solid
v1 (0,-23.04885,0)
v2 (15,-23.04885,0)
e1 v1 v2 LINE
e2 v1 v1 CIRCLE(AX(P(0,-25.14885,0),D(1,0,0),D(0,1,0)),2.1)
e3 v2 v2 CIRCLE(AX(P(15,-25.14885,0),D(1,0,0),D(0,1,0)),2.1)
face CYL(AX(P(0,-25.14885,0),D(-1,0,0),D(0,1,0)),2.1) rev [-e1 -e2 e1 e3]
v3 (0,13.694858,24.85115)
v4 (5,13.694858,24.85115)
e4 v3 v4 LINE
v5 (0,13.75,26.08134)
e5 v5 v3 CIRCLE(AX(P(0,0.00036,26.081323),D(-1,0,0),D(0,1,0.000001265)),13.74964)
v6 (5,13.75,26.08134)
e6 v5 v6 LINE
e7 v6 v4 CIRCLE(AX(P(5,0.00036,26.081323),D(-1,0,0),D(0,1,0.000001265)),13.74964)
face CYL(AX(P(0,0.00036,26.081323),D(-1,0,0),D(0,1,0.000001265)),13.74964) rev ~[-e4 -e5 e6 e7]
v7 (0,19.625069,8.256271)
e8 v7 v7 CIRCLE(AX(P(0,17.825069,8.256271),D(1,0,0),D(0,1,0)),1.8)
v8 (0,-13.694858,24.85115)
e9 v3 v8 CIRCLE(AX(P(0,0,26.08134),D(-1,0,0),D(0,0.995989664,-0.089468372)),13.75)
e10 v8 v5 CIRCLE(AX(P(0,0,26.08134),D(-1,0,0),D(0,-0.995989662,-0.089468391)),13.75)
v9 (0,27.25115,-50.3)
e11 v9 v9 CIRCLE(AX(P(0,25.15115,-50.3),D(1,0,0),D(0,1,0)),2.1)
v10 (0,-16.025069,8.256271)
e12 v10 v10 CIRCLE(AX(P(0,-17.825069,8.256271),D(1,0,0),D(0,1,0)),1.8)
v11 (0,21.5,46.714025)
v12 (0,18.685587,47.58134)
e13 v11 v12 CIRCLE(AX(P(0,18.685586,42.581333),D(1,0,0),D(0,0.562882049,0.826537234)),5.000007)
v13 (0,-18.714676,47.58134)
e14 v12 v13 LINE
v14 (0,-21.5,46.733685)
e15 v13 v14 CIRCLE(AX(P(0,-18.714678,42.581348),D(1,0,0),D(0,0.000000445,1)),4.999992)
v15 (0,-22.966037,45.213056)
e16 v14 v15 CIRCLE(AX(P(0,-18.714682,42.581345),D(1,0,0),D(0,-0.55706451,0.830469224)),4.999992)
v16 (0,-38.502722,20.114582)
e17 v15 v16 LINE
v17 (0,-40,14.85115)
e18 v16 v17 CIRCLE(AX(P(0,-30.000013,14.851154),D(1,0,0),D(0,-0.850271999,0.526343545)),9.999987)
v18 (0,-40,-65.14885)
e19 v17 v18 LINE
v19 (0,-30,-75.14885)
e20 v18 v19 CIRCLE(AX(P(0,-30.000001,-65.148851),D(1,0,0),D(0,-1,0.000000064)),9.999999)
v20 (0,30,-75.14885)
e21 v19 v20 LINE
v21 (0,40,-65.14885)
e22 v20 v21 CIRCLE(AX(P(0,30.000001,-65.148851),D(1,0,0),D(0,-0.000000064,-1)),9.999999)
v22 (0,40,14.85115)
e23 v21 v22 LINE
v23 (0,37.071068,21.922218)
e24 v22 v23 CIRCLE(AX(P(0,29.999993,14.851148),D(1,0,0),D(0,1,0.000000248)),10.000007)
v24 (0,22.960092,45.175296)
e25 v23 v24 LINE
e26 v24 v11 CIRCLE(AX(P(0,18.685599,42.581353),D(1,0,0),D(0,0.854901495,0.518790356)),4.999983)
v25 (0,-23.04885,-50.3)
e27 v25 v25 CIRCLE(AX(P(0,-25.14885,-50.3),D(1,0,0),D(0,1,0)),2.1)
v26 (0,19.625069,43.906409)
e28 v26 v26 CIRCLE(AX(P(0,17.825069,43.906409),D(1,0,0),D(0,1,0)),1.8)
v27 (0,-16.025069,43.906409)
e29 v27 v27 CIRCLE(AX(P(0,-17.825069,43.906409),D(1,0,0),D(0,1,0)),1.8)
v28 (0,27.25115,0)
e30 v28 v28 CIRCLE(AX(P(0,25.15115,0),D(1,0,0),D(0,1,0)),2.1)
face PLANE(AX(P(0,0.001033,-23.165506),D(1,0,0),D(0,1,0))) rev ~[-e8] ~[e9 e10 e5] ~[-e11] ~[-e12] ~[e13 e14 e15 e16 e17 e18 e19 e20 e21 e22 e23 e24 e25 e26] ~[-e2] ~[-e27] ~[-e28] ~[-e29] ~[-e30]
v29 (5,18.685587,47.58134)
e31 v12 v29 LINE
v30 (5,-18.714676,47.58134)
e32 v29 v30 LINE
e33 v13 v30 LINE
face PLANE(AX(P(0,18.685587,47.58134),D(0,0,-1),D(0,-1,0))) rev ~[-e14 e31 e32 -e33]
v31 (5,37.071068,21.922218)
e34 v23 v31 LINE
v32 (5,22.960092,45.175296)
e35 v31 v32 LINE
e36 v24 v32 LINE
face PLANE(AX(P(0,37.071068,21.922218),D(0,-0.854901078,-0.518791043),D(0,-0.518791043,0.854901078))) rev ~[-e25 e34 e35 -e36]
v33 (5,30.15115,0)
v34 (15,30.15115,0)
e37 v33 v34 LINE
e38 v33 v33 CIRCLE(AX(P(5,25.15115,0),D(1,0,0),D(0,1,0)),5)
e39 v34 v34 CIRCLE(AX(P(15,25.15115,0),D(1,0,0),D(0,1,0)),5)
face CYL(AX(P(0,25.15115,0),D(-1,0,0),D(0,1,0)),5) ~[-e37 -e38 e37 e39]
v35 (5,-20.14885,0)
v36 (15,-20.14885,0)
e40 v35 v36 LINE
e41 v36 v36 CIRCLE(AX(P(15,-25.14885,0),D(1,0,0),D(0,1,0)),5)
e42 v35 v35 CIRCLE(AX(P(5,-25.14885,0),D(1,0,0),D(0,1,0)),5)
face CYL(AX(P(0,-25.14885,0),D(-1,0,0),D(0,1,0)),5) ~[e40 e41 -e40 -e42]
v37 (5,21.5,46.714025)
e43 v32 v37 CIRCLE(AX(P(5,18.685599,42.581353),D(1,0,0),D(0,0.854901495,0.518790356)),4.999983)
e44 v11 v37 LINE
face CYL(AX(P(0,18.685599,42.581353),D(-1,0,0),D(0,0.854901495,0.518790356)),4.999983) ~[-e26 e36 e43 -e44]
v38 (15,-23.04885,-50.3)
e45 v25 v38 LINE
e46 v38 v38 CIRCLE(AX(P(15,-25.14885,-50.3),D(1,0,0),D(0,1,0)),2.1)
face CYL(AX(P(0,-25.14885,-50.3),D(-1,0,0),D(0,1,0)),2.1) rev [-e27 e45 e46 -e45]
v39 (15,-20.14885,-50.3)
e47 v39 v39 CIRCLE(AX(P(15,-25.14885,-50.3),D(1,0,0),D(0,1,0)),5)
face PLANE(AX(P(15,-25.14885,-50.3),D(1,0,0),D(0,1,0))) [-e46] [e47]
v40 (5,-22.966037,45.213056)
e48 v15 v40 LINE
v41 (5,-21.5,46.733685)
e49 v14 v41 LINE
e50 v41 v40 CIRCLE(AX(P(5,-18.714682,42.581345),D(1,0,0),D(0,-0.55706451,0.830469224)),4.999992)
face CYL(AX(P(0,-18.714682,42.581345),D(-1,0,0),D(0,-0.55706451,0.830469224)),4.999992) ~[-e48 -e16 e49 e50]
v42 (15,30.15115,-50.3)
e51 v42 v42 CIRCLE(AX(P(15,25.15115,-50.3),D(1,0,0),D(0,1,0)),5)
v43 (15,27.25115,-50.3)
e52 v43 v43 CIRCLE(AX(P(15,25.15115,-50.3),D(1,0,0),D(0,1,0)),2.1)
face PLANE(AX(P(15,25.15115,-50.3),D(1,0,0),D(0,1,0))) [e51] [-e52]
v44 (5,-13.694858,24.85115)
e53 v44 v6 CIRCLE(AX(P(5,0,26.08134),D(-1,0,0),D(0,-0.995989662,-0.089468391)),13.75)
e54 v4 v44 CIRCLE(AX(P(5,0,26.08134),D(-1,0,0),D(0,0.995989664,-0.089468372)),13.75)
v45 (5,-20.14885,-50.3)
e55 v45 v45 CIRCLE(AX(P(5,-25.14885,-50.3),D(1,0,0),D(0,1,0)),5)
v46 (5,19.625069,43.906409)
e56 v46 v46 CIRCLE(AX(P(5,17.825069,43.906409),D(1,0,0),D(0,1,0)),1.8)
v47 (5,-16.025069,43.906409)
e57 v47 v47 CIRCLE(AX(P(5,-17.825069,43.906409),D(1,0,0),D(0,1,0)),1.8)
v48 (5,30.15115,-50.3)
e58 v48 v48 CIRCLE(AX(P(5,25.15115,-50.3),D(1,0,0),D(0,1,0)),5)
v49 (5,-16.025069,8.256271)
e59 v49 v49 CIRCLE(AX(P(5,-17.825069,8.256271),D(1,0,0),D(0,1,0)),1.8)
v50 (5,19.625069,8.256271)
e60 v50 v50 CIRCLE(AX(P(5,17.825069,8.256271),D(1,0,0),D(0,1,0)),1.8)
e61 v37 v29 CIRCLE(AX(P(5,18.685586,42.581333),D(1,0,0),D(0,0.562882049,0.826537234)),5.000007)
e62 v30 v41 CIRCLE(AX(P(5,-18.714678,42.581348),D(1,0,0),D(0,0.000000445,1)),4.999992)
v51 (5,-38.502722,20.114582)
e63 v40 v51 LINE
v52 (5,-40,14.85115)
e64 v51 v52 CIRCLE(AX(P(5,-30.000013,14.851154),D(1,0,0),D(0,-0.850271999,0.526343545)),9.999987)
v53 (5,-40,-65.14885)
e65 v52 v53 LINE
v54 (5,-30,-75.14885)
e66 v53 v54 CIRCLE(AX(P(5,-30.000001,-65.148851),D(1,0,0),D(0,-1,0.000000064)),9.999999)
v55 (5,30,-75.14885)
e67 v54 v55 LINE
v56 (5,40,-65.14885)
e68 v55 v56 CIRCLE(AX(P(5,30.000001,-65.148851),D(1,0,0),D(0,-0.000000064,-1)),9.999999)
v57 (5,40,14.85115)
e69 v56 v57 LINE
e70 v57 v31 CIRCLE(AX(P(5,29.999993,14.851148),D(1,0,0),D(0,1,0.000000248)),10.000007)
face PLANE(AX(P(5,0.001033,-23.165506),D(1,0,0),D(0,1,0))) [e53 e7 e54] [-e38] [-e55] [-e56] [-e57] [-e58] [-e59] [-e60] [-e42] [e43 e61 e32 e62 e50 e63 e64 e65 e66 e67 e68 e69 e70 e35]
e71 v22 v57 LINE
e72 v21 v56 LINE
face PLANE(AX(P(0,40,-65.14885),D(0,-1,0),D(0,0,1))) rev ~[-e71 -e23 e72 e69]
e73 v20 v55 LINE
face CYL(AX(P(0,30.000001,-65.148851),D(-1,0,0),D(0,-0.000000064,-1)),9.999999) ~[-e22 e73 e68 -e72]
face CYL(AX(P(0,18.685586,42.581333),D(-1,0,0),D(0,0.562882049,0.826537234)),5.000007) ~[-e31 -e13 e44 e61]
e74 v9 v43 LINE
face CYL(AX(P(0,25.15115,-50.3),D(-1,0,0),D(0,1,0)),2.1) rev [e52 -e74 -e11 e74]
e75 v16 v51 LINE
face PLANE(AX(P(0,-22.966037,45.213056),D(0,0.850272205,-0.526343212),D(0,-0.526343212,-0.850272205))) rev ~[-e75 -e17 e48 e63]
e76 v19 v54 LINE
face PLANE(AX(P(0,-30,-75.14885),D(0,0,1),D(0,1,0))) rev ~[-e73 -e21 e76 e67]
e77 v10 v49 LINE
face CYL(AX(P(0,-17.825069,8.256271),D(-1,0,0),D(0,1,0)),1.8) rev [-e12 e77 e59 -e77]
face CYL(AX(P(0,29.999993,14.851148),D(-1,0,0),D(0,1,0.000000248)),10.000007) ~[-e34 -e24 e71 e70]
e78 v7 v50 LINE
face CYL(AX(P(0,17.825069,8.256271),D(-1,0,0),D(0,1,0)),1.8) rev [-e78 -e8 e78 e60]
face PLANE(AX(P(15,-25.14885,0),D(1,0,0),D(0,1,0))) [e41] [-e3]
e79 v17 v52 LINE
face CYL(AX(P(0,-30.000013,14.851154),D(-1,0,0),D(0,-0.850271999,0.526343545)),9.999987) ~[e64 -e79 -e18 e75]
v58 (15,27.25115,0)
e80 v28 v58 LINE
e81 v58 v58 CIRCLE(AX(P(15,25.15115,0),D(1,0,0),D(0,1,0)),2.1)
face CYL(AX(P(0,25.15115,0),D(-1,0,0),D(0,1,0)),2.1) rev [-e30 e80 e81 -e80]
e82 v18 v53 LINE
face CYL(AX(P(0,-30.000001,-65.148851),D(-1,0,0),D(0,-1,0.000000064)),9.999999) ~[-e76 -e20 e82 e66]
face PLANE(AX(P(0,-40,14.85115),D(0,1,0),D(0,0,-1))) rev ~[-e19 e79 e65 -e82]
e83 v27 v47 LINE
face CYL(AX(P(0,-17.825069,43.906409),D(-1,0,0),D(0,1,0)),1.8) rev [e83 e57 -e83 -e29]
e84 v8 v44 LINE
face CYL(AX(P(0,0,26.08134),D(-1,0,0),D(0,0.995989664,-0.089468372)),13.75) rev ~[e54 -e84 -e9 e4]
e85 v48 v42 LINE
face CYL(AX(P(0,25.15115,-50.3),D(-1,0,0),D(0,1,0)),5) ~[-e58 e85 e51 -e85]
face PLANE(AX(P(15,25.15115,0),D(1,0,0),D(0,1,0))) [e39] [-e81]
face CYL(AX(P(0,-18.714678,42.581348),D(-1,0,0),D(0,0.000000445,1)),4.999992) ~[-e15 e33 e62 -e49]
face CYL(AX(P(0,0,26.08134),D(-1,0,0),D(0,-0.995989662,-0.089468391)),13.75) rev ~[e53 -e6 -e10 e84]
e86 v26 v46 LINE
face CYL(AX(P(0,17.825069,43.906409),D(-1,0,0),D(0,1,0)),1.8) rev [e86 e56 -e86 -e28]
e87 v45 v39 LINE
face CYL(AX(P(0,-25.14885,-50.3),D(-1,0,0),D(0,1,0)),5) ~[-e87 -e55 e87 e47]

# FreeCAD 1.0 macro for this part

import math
import FreeCAD as App
import Part
import Sketcher

V = App.Vector

doc = App.newDocument("Part")
body = doc.addObject("PartDesign::Body", "Body")

# Sketch on YZ plane
sketch1 = body.newObject("Sketcher::SketchObject", "Sketch")
sketch1.AttachmentSupport = (doc.getObject("YZ_Plane"), [""])
sketch1.MapMode = "FlatFace"
sketch1.addGeometry([
    Part.LineSegment(V(-30, -75.14885, 0), V(30, -75.14885, 0)),  # 0
    Part.ArcOfCircle(Part.Circle(V(30.000001, -65.148851, 0), V(0, 0, 1), 9.999999), math.radians(-90.000004), math.radians(0.000004)),  # 1
    Part.LineSegment(V(40, -65.14885, 0), V(40, 14.85115, 0)),  # 2
    Part.ArcOfCircle(Part.Circle(V(29.999993, 14.851148, 0), V(0, 0, 1), 10.000007), math.radians(0.000014), math.radians(44.999982)),  # 3
    Part.LineSegment(V(37.071068, 21.922218, 0), V(22.960092, 45.175296, 0)),  # 4
    Part.ArcOfCircle(Part.Circle(V(18.685599, 42.581353, 0), V(0, 0, 1), 4.999983), math.radians(31.251146), math.radians(55.744649)),  # 5
    Part.ArcOfCircle(Part.Circle(V(18.685586, 42.581333, 0), V(0, 0, 1), 5.000007), math.radians(55.744654), math.radians(89.999988)),  # 6
    Part.LineSegment(V(18.685587, 47.58134, 0), V(-18.714676, 47.58134, 0)),  # 7
    Part.ArcOfCircle(Part.Circle(V(-18.714678, 42.581348, 0), V(0, 0, 1), 4.999992), math.radians(89.999974), math.radians(123.853082)),  # 8
    Part.ArcOfCircle(Part.Circle(V(-18.714682, 42.581345, 0), V(0, 0, 1), 4.999992), math.radians(123.853031), math.radians(148.241306)),  # 9
    Part.LineSegment(V(-22.966037, 45.213056, 0), V(-38.502722, 20.114582, 0)),  # 10
    Part.ArcOfCircle(Part.Circle(V(-30.000013, 14.851154, 0), V(0, 0, 1), 9.999987), math.radians(148.241266), math.radians(180.000021)),  # 11
    Part.LineSegment(V(-40, 14.85115, 0), V(-40, -65.14885, 0)),  # 12
    Part.ArcOfCircle(Part.Circle(V(-30.000001, -65.148851, 0), V(0, 0, 1), 9.999999), math.radians(179.999996), math.radians(270.000004)),  # 13
    Part.Circle(V(-25.14885, -50.3, 0), V(0, 0, 1), 5),  # 14
    Part.Circle(V(25.15115, -50.3, 0), V(0, 0, 1), 5),  # 15
    Part.Circle(V(-25.14885, 0, 0), V(0, 0, 1), 5),  # 16
    Part.Circle(V(-17.825069, 8.256271, 0), V(0, 0, 1), 1.8),  # 17
    Part.Circle(V(-17.825069, 43.906409, 0), V(0, 0, 1), 1.8),  # 18
    Part.ArcOfCircle(Part.Circle(V(0.00036, 26.081323, 0), V(0, 0, 1), 13.74964), math.radians(-5.133085), math.radians(0.000072)),  # 19
    Part.ArcOfCircle(Part.Circle(V(0, 26.08134, 0), V(0, 0, 1), 13.75), math.radians(-174.866976), math.radians(-5.133024)),  # 20
    Part.ArcOfCircle(Part.Circle(V(0, 26.08134, 0), V(0, 0, 1), 13.75), math.radians(-0.000002), math.radians(185.133025)),  # 21
    Part.Circle(V(25.15115, 0, 0), V(0, 0, 1), 5),  # 22
    Part.Circle(V(17.825069, 8.256271, 0), V(0, 0, 1), 1.8),  # 23
    Part.Circle(V(17.825069, 43.906409, 0), V(0, 0, 1), 1.8),  # 24
], False)
sketch1.addConstraint([
    Sketcher.Constraint("Coincident", 0, 2, 1, 1),
    Sketcher.Constraint("Coincident", 1, 2, 2, 1),
    Sketcher.Constraint("Coincident", 2, 2, 3, 1),
    Sketcher.Constraint("Coincident", 3, 2, 4, 1),
    Sketcher.Constraint("Coincident", 4, 2, 5, 1),
    Sketcher.Constraint("Coincident", 5, 2, 6, 1),
    Sketcher.Constraint("Coincident", 6, 2, 7, 1),
    Sketcher.Constraint("Coincident", 7, 2, 8, 1),
    Sketcher.Constraint("Coincident", 8, 2, 9, 1),
    Sketcher.Constraint("Coincident", 9, 2, 10, 1),
    Sketcher.Constraint("Coincident", 10, 2, 11, 1),
    Sketcher.Constraint("Coincident", 11, 2, 12, 1),
    Sketcher.Constraint("Coincident", 12, 2, 13, 1),
    Sketcher.Constraint("Coincident", 13, 2, 0, 1),
    Sketcher.Constraint("Coincident", 19, 1, 20, 2),
    Sketcher.Constraint("Coincident", 20, 1, 21, 2),
    Sketcher.Constraint("Coincident", 21, 1, 19, 2),
    Sketcher.Constraint("Horizontal", 0),
    Sketcher.Constraint("Vertical", 2),
    Sketcher.Constraint("Horizontal", 7),
    Sketcher.Constraint("Vertical", 12),
    Sketcher.Constraint("Coincident", 9, 3, 8, 3),
    Sketcher.Constraint("Coincident", 21, 3, 20, 3),
    Sketcher.Constraint("PointOnObject", 16, 3, -1),
    Sketcher.Constraint("PointOnObject", 20, 3, -2),
    Sketcher.Constraint("PointOnObject", 22, 3, -1),
    Sketcher.Constraint("Diameter", 14, 10.0),
    Sketcher.Constraint("Diameter", 15, 10.0),
    Sketcher.Constraint("Diameter", 16, 10.0),
    Sketcher.Constraint("Diameter", 22, 10.0),
    Sketcher.Constraint("Radius", 1, 9.999999),
    Sketcher.Constraint("Radius", 13, 9.999999),
    Sketcher.Constraint("Diameter", 17, 3.6),
    Sketcher.Constraint("Diameter", 18, 3.6),
    Sketcher.Constraint("Diameter", 23, 3.6),
    Sketcher.Constraint("Diameter", 24, 3.6),
    Sketcher.Constraint("DistanceX", 0, 1, 0, 2, 60.0),
    Sketcher.Constraint("DistanceY", 2, 1, 2, 2, 80.0),
    Sketcher.Constraint("DistanceY", 12, 2, 12, 1, 80.0),
    Sketcher.Constraint("Radius", 20, 13.75),
    Sketcher.Constraint("DistanceX", -1, 1, 1, 3, 30.000001),
    Sketcher.Constraint("DistanceX", 13, 3, -1, 1, 30.000001),
    Sketcher.Constraint("DistanceX", -1, 1, 0, 2, 30.0),
    Sketcher.Constraint("DistanceY", 1, 3, 3, 3, 79.999998),
    Sketcher.Constraint("DistanceY", 0, 2, 1, 2, 10.0),
    Sketcher.Constraint("DistanceY", 13, 2, 12, 2, 10.0),
    Sketcher.Constraint("DistanceY", 14, 3, -1, 1, 50.3),
    Sketcher.Constraint("DistanceY", 15, 3, -1, 1, 50.3),
    Sketcher.Constraint("DistanceX", -1, 1, 5, 2, 21.5),
    Sketcher.Constraint("DistanceX", 8, 2, -1, 1, 21.5),
    Sketcher.Constraint("DistanceX", 14, 3, 15, 3, 50.3),
    Sketcher.Constraint("DistanceY", 21, 3, 7, 2, 21.5),
    Sketcher.Constraint("Radius", 8, 4.999992),
    Sketcher.Constraint("Radius", 19, 13.74964),
    Sketcher.Constraint("Radius", 3, 10.000007),
    Sketcher.Constraint("Radius", 5, 4.999983),
    Sketcher.Constraint("Radius", 6, 5.000007),
    Sketcher.Constraint("Radius", 11, 9.999987),
    Sketcher.Constraint("DistanceX", 23, 3, 3, 2, 19.245999),
    Sketcher.Constraint("DistanceX", -1, 1, 5, 3, 18.685599),
    Sketcher.Constraint("DistanceY", 3, 3, 8, 3, 27.730201),
    Sketcher.Constraint("DistanceX", 11, 3, 6, 3, 48.685599),
    Sketcher.Constraint("DistanceY", 11, 3, 5, 3, 27.730199),
    Sketcher.Constraint("Distance", 4, 27.199729),
    Sketcher.Constraint("DistanceX", 7, 2, 7, 1, 37.400263),
    Sketcher.Constraint("DistanceY", 1, 3, -1, 1, 65.148851),
    Sketcher.Constraint("DistanceX", 8, 3, -1, 1, 18.714678),
    Sketcher.Constraint("DistanceX", 14, 3, -1, 1, 25.14885),
    Sketcher.Constraint("DistanceX", 16, 3, -1, 1, 25.14885),
    Sketcher.Constraint("DistanceX", 17, 3, -1, 1, 17.825069),
    Sketcher.Constraint("DistanceY", -1, 1, 17, 3, 8.256271),
    Sketcher.Constraint("DistanceX", 18, 3, -1, 1, 17.825069),
    Sketcher.Constraint("DistanceY", -1, 1, 18, 3, 43.906409),
    Sketcher.Constraint("DistanceX", -1, 1, 22, 3, 25.15115),
    Sketcher.Constraint("DistanceX", -1, 1, 23, 3, 17.825069),
    Sketcher.Constraint("DistanceY", -1, 1, 23, 3, 8.256271),
    Sketcher.Constraint("DistanceX", -1, 1, 24, 3, 17.825069),
    Sketcher.Constraint("DistanceY", -1, 1, 24, 3, 43.906409),
    Sketcher.Constraint("DistanceY", -1, 1, 10, 2, 20.114582),
    Sketcher.Constraint("DistanceY", -1, 1, 19, 1, 24.85115),
    Sketcher.Constraint("DistanceX", 20, 1, -1, 1, 13.694858),
    Sketcher.Constraint("DistanceY", -1, 1, 21, 1, 26.08134),
    Sketcher.Constraint("DistanceX", 24, 3, 6, 2, 0.860518),
    Sketcher.Constraint("DistanceY", 9, 2, 8, 2, 1.520629),
])
pad1 = body.newObject("PartDesign::Pad", "Pad")
pad1.Profile = sketch1
pad1.Length = 5

# Sketch on YZ plane
sketch2 = body.newObject("Sketcher::SketchObject", "Sketch001")
sketch2.AttachmentSupport = (doc.getObject("YZ_Plane"), [""])
sketch2.MapMode = "FlatFace"
sketch2.addGeometry([
    Part.Circle(V(-25.14885, 0, 0), V(0, 0, 1), 5),  # 0
    Part.Circle(V(-25.14885, 0, 0), V(0, 0, 1), 2.1),  # 1
    Part.Circle(V(25.15115, 0, 0), V(0, 0, 1), 5),  # 2
    Part.Circle(V(25.15115, 0, 0), V(0, 0, 1), 2.1),  # 3
    Part.Circle(V(25.15115, -50.3, 0), V(0, 0, 1), 5),  # 4
    Part.Circle(V(25.15115, -50.3, 0), V(0, 0, 1), 2.1),  # 5
    Part.Circle(V(-25.14885, -50.3, 0), V(0, 0, 1), 5),  # 6
    Part.Circle(V(-25.14885, -50.3, 0), V(0, 0, 1), 2.1),  # 7
], False)
sketch2.addConstraint([
    Sketcher.Constraint("Coincident", 1, 3, 0, 3),
    Sketcher.Constraint("Coincident", 3, 3, 2, 3),
    Sketcher.Constraint("Coincident", 5, 3, 4, 3),
    Sketcher.Constraint("Coincident", 7, 3, 6, 3),
    Sketcher.Constraint("Equal", 0, 2),
    Sketcher.Constraint("Equal", 1, 3),
    Sketcher.Constraint("Equal", 2, 4),
    Sketcher.Constraint("Equal", 3, 5),
    Sketcher.Constraint("Equal", 4, 6),
    Sketcher.Constraint("Equal", 5, 7),
    Sketcher.Constraint("PointOnObject", 0, 3, -1),
    Sketcher.Constraint("PointOnObject", 2, 3, -1),
    Sketcher.Constraint("Horizontal", 5, 3, 6, 3),
    Sketcher.Constraint("Vertical", 3, 3, 4, 3),
    Sketcher.Constraint("Vertical", 1, 3, 6, 3),
    Sketcher.Constraint("Diameter", 0, 10.0),
    Sketcher.Constraint("Diameter", 1, 4.2),
    Sketcher.Constraint("DistanceY", 4, 3, -1, 1, 50.3),
    Sketcher.Constraint("DistanceX", 0, 3, 2, 3, 50.3),
    Sketcher.Constraint("DistanceX", 0, 3, -1, 1, 25.14885),
])
pad2 = body.newObject("PartDesign::Pad", "Pad001")
pad2.Profile = sketch2
pad2.Length = 15

doc.recompute()
